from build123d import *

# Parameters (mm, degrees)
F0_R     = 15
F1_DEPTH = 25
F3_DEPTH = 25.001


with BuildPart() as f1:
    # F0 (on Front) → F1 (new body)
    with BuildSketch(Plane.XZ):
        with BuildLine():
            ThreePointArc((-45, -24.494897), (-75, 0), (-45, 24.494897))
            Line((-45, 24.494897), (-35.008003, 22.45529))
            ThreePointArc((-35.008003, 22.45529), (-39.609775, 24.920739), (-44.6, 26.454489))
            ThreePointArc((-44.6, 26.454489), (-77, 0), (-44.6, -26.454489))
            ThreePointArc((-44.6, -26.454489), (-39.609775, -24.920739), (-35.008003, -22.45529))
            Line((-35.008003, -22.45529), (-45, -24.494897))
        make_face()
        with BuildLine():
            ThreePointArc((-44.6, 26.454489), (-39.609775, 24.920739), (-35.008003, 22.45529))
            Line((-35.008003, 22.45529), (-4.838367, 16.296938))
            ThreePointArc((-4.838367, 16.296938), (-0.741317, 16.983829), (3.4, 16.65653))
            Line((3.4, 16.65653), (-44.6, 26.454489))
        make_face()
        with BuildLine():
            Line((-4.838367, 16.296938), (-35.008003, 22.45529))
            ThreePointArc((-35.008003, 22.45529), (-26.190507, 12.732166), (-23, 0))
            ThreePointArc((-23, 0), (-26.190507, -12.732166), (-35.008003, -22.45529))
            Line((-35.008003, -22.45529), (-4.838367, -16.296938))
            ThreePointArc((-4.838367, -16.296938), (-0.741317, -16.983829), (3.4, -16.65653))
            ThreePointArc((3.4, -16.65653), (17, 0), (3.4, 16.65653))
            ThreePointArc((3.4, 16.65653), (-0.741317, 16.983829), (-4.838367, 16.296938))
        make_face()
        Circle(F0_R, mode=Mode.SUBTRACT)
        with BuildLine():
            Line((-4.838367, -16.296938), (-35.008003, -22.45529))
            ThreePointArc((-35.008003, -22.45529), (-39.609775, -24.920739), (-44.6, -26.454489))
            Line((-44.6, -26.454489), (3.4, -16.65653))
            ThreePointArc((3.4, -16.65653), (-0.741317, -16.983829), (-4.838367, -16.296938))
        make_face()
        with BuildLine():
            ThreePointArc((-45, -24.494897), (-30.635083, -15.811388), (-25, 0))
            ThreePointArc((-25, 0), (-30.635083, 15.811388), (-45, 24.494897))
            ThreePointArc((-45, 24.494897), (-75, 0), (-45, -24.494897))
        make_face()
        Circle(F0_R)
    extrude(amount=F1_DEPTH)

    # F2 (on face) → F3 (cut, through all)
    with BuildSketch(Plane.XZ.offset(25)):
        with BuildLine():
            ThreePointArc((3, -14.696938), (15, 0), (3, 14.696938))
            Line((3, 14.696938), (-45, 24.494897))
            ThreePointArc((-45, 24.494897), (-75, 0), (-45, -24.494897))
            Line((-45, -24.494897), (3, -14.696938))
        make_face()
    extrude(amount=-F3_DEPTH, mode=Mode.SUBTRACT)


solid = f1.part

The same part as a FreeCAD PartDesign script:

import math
import FreeCAD as App
import Part
import Sketcher
from FreeCAD import Vector

doc = App.newDocument("Part")
body = doc.addObject("PartDesign::Body", "Body")

# Sketch on XZ plane
sketch1 = body.newObject("Sketcher::SketchObject", "Sketch")
sketch1.AttachmentSupport = (doc.getObject("XZ_Plane"), [""])
sketch1.MapMode = "FlatFace"
sketch1.addGeometry(Part.ArcOfCircle(Part.Circle(Vector(-50, 0, 0), Vector(0, 0, 1), 27), math.radians(78), math.radians(282)), False)
sketch1.addGeometry(Part.LineSegment(Vector(-45, -26, 0), Vector(3, -17, 0)), False)
sketch1.addGeometry(Part.ArcOfCircle(Part.Circle(Vector(0, 0, 0), Vector(0, 0, 1), 17), math.radians(-78), math.radians(78)), False)
sketch1.addGeometry(Part.LineSegment(Vector(3, 17, 0), Vector(-45, 26, 0)), False)
sketch1.addGeometry(Part.LineSegment(Vector(-45, 24, 0), Vector(-35, 22, 0)), False)
sketch1.addGeometry(Part.ArcOfCircle(Part.Circle(Vector(-50, 0, 0), Vector(0, 0, 1), 27), math.radians(0), math.radians(56)), False)
sketch1.addGeometry(Part.ArcOfCircle(Part.Circle(Vector(-50, 0, 0), Vector(0, 0, 1), 27), math.radians(-56), math.radians(0)), False)
sketch1.addGeometry(Part.LineSegment(Vector(-35, -22, 0), Vector(-45, -24, 0)), False)
sketch1.addGeometry(Part.ArcOfCircle(Part.Circle(Vector(-50, 0, 0), Vector(0, 0, 1), 25), math.radians(-78), math.radians(0)), False)
sketch1.addGeometry(Part.ArcOfCircle(Part.Circle(Vector(-50, 0, 0), Vector(0, 0, 1), 25), math.radians(0), math.radians(78)), False)
sketch1.addConstraint(Sketcher.Constraint("Tangent", 0, 2, 1, 1))
sketch1.addConstraint(Sketcher.Constraint("Tangent", 1, 2, 2, 1))
sketch1.addConstraint(Sketcher.Constraint("Tangent", 2, 2, 3, 1))
sketch1.addConstraint(Sketcher.Constraint("Tangent", 3, 2, 0, 1))
sketch1.addConstraint(Sketcher.Constraint("Coincident", 4, 2, 5, 2))
sketch1.addConstraint(Sketcher.Constraint("Tangent", 5, 1, 6, 2))
sketch1.addConstraint(Sketcher.Constraint("Coincident", 6, 1, 7, 1))
sketch1.addConstraint(Sketcher.Constraint("Tangent", 7, 2, 8, 1))
sketch1.addConstraint(Sketcher.Constraint("Tangent", 8, 2, 9, 1))
sketch1.addConstraint(Sketcher.Constraint("Tangent", 9, 2, 4, 1))
sketch1.addConstraint(Sketcher.Constraint("Coincident", 2, 3, -1, 1))
sketch1.addConstraint(Sketcher.Constraint("Coincident", 5, 3, 0, 3))
sketch1.addConstraint(Sketcher.Constraint("Coincident", 8, 3, 0, 3))
sketch1.addConstraint(Sketcher.Constraint("Equal", 0, 5))
sketch1.addConstraint(Sketcher.Constraint("Equal", 5, 6))
sketch1.addConstraint(Sketcher.Constraint("Equal", 8, 9))
sketch1.addConstraint(Sketcher.Constraint("Symmetric", 4, 2, 6, 1, -1))
sketch1.addConstraint(Sketcher.Constraint("PointOnObject", 5, 1, -1))
sketch1.addConstraint(Sketcher.Constraint("PointOnObject", 8, 2, -1))
sketch1.addConstraint(Sketcher.Constraint("Parallel", 3, 4))
sketch1.addConstraint(Sketcher.Constraint("Radius", 0, 27.0))
sketch1.addConstraint(Sketcher.Constraint("Radius", 2, 17.0))
sketch1.addConstraint(Sketcher.Constraint("Radius", 8, 24.999999))
sketch1.addConstraint(Sketcher.Constraint("DistanceX", 0, 3, -1, 1, 50.0))
pad1 = body.newObject("PartDesign::Pad", "Pad")
pad1.Profile = sketch1
pad1.Length = 25

# Sketch on XZ plane
sketch2 = body.newObject("Sketcher::SketchObject", "Sketch001")
sketch2.AttachmentSupport = (doc.getObject("XZ_Plane"), [""])
sketch2.MapMode = "FlatFace"
sketch2.AttachmentOffset = App.Placement(Vector(0, 0, 25), App.Rotation())
sketch2.addGeometry(Part.ArcOfCircle(Part.Circle(Vector(0, 0, 0), Vector(0, 0, 1), 15), math.radians(-78), math.radians(78)), False)
sketch2.addGeometry(Part.LineSegment(Vector(3, 15, 0), Vector(-45, 24, 0)), False)
sketch2.addGeometry(Part.ArcOfCircle(Part.Circle(Vector(-50, 0, 0), Vector(0, 0, 1), 25), math.radians(78), math.radians(282)), False)
sketch2.addGeometry(Part.LineSegment(Vector(-45, -24, 0), Vector(3, -15, 0)), False)
sketch2.addConstraint(Sketcher.Constraint("Tangent", 0, 2, 1, 1))
sketch2.addConstraint(Sketcher.Constraint("Tangent", 1, 2, 2, 1))
sketch2.addConstraint(Sketcher.Constraint("Tangent", 2, 2, 3, 1))
sketch2.addConstraint(Sketcher.Constraint("Tangent", 3, 2, 0, 1))
sketch2.addConstraint(Sketcher.Constraint("Coincident", 0, 3, -1, 1))
sketch2.addConstraint(Sketcher.Constraint("PointOnObject", 2, 3, -1))
sketch2.addConstraint(Sketcher.Constraint("Radius", 0, 14.999999))
sketch2.addConstraint(Sketcher.Constraint("Radius", 2, 25.0))
sketch2.addConstraint(Sketcher.Constraint("DistanceX", 2, 3, -1, 1, 50.0))
pocket1 = body.newObject("PartDesign::Pocket", "Pocket")
pocket1.Profile = sketch2
pocket1.Type = "ThroughAll"

doc.recompute()
